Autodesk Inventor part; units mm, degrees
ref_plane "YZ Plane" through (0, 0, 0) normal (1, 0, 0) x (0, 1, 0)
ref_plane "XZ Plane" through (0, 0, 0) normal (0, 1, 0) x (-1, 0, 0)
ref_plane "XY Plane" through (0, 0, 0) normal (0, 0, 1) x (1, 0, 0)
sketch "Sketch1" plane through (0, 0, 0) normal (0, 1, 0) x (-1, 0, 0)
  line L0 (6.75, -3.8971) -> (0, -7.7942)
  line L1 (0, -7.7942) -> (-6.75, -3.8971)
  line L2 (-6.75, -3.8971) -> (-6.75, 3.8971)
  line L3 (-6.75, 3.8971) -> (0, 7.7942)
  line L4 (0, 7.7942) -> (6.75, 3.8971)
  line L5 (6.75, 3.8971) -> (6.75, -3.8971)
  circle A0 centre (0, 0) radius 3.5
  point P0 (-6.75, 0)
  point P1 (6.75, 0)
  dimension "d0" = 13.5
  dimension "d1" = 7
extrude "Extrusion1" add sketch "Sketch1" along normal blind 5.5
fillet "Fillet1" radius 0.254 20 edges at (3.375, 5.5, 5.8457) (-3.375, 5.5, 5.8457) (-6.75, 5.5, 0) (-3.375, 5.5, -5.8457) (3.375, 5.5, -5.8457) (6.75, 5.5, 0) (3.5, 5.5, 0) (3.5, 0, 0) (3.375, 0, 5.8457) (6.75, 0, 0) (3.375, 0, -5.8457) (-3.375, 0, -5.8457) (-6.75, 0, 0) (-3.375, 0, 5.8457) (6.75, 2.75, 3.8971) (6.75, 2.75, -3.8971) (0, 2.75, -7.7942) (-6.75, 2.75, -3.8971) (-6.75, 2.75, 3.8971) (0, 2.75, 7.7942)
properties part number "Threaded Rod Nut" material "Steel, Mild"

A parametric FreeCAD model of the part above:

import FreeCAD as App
import Part
import Sketcher
from FreeCAD import Vector
Q = App.Units.Quantity


def add_polygon(sketch, points):
    """Adds a closed chain of lines whose ends are joined by coincident constraints."""
    first, n = sketch.GeometryCount, len(points)
    for a, b in zip(points, points[1:] + points[:1]):
        sketch.addGeometry(Part.LineSegment(App.Vector(*a, 0), App.Vector(*b, 0)), False)
    for i in range(n):
        sketch.addConstraint(Sketcher.Constraint("Coincident", first + i, 2, first + (i + 1) % n, 1))

doc = App.newDocument("Part")
body = doc.addObject("PartDesign::Body", "Body")

# Sketch on XZ plane
sketch1 = body.newObject("Sketcher::SketchObject", "Sketch")
sketch1.AttachmentSupport = (doc.getObject("XZ_Plane"), [""])
sketch1.MapMode = "FlatFace"
add_polygon(sketch1, [(0, -7.8), (-6.8, -3.9), (-6.8, 3.9), (0, 7.8), (6.8, 3.9), (6.8, -3.9)])  # lines 0-5
sketch1.addGeometry(Part.Circle(Vector(0, 0, 0), Vector(0, 0, 1), 3.5), False)  # 6
sketch1.addConstraint(Sketcher.Constraint("Vertical", 1))
sketch1.addConstraint(Sketcher.Constraint("Vertical", 4))
sketch1.addConstraint(Sketcher.Constraint("Coincident", 6, 3, -1, 1))
sketch1.addConstraint(Sketcher.Constraint("Symmetric", 0, 2, 3, 2, -1, 1))
sketch1.addConstraint(Sketcher.Constraint("Symmetric", 2, 2, 5, 2, -1, 1))
sketch1.addConstraint(Sketcher.Constraint("PointOnObject", 2, 2, -2))
sketch1.addConstraint(Sketcher.Constraint("Parallel", 2, 5))
sketch1.addConstraint(Sketcher.Constraint("Horizontal", 1, 2, 3, 2))
sketch1.addConstraint(Sketcher.Constraint("Diameter", 6, Q("7 mm")))
sketch1.addConstraint(Sketcher.Constraint("DistanceX", 1, 2, 3, 2, Q("13.5 mm")))
sketch1.addConstraint(Sketcher.Constraint("Angle", 0, Q("150 deg")))
sketch1.addConstraint(Sketcher.Constraint("DistanceY", 1, 1, 1, 2, Q("7.7942 mm")))
pad1 = body.newObject("PartDesign::Pad", "Pad")
pad1.Profile = sketch1
pad1.Length = 5.5
pad1.Reversed = True
doc.recompute()

fillet = body.newObject("PartDesign::Fillet", "Fillet")
fillet.Base = (pad1, ["Edge1"])
fillet.UseAllEdges = True
fillet.Radius = 0.254

doc.recompute()
